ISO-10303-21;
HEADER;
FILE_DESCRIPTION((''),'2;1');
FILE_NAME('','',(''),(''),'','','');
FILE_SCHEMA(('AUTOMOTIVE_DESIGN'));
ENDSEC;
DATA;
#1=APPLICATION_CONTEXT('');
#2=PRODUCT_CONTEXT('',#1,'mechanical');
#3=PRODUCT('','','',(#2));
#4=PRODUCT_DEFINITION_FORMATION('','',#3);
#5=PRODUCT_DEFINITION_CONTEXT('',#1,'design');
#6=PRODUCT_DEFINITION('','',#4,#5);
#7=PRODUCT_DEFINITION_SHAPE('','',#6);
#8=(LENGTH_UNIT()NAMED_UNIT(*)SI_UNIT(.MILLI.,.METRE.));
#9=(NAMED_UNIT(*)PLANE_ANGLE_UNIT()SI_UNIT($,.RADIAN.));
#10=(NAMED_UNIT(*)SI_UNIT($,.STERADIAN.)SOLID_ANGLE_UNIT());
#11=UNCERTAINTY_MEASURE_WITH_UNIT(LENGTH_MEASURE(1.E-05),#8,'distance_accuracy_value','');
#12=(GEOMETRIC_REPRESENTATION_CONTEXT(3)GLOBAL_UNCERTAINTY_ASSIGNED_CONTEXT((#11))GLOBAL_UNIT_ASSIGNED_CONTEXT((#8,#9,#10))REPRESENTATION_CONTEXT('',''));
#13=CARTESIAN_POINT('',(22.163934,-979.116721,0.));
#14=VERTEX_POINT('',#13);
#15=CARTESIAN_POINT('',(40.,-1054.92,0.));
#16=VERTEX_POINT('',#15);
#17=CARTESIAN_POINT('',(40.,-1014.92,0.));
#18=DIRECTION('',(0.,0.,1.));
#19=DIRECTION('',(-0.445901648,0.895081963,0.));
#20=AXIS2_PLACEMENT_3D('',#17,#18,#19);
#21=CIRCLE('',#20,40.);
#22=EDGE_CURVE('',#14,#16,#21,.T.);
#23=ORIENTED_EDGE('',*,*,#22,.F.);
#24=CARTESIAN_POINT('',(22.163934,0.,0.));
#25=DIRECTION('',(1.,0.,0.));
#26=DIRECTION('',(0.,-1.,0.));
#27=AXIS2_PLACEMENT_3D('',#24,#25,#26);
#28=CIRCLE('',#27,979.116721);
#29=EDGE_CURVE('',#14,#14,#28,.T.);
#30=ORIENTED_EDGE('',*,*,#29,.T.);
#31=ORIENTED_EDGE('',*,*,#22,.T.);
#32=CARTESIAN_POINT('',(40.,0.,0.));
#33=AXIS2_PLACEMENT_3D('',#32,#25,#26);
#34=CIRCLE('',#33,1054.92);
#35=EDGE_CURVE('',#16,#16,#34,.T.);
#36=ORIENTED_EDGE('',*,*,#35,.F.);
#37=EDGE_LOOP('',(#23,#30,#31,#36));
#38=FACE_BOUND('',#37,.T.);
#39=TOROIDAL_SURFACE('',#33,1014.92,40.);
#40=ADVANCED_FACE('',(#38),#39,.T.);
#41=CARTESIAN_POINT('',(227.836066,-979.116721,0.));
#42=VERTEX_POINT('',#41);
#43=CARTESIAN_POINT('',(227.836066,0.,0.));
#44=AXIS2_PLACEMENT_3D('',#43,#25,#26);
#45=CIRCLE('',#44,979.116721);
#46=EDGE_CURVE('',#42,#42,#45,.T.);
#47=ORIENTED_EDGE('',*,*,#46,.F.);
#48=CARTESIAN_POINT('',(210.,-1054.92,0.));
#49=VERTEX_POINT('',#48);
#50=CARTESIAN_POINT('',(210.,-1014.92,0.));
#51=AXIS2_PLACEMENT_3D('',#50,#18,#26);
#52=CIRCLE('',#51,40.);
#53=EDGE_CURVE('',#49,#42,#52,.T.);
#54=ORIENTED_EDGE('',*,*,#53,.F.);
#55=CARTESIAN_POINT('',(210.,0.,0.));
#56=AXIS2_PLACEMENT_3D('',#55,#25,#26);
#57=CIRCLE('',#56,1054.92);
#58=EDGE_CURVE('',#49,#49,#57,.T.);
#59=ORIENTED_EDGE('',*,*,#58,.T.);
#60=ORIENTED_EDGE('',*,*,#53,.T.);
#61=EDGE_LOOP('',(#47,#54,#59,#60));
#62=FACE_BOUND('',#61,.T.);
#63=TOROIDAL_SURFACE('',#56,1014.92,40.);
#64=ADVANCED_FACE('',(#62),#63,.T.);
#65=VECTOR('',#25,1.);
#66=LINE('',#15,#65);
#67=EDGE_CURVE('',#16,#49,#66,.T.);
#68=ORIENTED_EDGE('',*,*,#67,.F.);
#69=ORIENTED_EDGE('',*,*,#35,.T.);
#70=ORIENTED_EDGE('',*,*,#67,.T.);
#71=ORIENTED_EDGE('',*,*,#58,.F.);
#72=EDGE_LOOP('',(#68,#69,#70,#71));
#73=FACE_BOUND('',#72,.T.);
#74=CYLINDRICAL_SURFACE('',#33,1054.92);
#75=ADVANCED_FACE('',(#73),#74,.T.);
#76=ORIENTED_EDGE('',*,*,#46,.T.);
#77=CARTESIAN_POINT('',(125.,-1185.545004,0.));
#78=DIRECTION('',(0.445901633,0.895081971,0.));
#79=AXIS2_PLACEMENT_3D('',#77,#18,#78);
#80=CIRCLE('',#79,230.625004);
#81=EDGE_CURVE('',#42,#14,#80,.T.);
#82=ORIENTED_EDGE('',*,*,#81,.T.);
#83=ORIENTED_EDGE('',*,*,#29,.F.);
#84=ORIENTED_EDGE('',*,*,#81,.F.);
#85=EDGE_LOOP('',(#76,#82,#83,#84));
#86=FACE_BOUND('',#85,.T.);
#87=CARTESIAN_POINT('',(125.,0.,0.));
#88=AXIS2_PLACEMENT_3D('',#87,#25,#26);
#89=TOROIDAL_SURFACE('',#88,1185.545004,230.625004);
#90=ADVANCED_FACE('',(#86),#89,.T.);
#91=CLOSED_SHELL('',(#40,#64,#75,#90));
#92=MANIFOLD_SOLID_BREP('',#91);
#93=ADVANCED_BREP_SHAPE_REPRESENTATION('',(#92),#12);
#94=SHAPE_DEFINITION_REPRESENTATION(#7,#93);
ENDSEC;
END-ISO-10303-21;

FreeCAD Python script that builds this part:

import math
import FreeCAD as App
import Part
import Sketcher

V = App.Vector

doc = App.newDocument("Part")
body = doc.addObject("PartDesign::Body", "Body")

# Sketch on XY plane
sketch1 = doc.addObject("Sketcher::SketchObject", "Sketch")
body.addObject(sketch1)
sketch1.AttachmentSupport = (doc.XY_Plane, [""])
sketch1.MapMode = "FlatFace"
sketch1.addGeometry([
    Part.LineSegment(V(40, -1055, 0), V(210, -1055, 0)),
    Part.ArcOfCircle(Part.Circle(V(210, -1015, 0), V(0, 0, 1), 40), math.radians(-90), math.radians(64)),
    Part.ArcOfCircle(Part.Circle(V(125, -1186, 0), V(0, 0, 1), 231), math.radians(64), math.radians(116)),
    Part.ArcOfCircle(Part.Circle(V(40, -1015, 0), V(0, 0, 1), 40), math.radians(116), math.radians(270)),
], False)
sketch1.addConstraint([
    Sketcher.Constraint("Tangent", 0, 2, 1, 1),
    Sketcher.Constraint("Tangent", 1, 2, 2, 1),
    Sketcher.Constraint("Tangent", 2, 2, 3, 1),
    Sketcher.Constraint("Tangent", 3, 2, 0, 1),
    Sketcher.Constraint("Horizontal", 0),
    Sketcher.Constraint("Equal", 1, 3),
    Sketcher.Constraint("Radius", 1, 40.0),
    Sketcher.Constraint("DistanceX", 0, 1, 0, 2, 170.0),
    Sketcher.Constraint("DistanceX", -1, 1, 1, 3, 210.0),
    Sketcher.Constraint("DistanceY", 1, 3, -1, 1, 1014.92),
    Sketcher.Constraint("Radius", 2, 230.625004),
])
revolution = doc.addObject("PartDesign::Revolution", "Revolution")
body.addObject(revolution)
revolution.Profile = sketch1
revolution.ReferenceAxis = (sketch1, ["H_Axis"])
revolution.Angle = 360

doc.recompute()
